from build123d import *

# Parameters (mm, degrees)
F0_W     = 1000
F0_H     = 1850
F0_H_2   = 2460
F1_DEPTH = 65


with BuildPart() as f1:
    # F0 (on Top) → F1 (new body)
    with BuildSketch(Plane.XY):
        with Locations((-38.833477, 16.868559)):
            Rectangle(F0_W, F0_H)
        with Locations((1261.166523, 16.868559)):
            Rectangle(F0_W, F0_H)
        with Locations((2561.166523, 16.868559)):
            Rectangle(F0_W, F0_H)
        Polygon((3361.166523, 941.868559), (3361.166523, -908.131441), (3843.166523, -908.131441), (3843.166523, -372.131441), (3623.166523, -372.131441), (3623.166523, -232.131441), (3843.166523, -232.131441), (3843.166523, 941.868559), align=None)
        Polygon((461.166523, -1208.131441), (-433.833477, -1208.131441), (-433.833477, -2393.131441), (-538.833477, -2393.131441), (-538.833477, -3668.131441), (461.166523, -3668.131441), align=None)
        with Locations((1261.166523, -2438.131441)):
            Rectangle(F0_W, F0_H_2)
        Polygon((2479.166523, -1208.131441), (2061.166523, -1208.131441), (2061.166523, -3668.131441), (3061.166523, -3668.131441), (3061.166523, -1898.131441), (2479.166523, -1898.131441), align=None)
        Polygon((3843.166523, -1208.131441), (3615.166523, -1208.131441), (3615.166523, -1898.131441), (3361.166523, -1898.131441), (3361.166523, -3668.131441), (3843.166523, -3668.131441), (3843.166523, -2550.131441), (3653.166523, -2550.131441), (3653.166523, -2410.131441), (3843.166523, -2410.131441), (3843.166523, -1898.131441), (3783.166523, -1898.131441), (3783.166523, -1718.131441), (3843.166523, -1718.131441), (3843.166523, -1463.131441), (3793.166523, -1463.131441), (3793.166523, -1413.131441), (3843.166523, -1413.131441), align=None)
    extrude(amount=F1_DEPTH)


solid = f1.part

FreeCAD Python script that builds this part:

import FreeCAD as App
import Part
import Sketcher
from FreeCAD import Vector
Q = App.Units.Quantity

doc = App.newDocument("Part")
body = doc.addObject("PartDesign::Body", "Body")
body.AllowCompound = True

# Sketch on XY plane
sketch1 = doc.addObject("Sketcher::SketchObject", "Sketch")
body.addObject(sketch1)
sketch1.AttachmentSupport = (doc.XY_Plane, [""])
sketch1.MapMode = "FlatFace"
sketch1.addGeometry([
    Part.LineSegment(Vector(-539, 942, 0), Vector(-539, -908, 0)),  # 0
    Part.LineSegment(Vector(-539, -908, 0), Vector(461, -908, 0)),  # 1
    Part.LineSegment(Vector(461, -908, 0), Vector(461, 942, 0)),  # 2
    Part.LineSegment(Vector(461, 942, 0), Vector(-539, 942, 0)),  # 3
    Part.LineSegment(Vector(761, 942, 0), Vector(761, -908, 0)),  # 4
    Part.LineSegment(Vector(761, -908, 0), Vector(1761, -908, 0)),  # 5
    Part.LineSegment(Vector(1761, -908, 0), Vector(1761, 942, 0)),  # 6
    Part.LineSegment(Vector(1761, 942, 0), Vector(761, 942, 0)),  # 7
    Part.LineSegment(Vector(2061, 942, 0), Vector(2061, -908, 0)),  # 8
    Part.LineSegment(Vector(2061, -908, 0), Vector(3061, -908, 0)),  # 9
    Part.LineSegment(Vector(3061, -908, 0), Vector(3061, 942, 0)),  # 10
    Part.LineSegment(Vector(3061, 942, 0), Vector(2061, 942, 0)),  # 11
    Part.LineSegment(Vector(3361, 942, 0), Vector(3361, -908, 0)),  # 12
    Part.LineSegment(Vector(3361, -908, 0), Vector(3843, -908, 0)),  # 13
    Part.LineSegment(Vector(3843, -908, 0), Vector(3843, -372, 0)),  # 14
    Part.LineSegment(Vector(3843, -372, 0), Vector(3623, -372, 0)),  # 15
    Part.LineSegment(Vector(3623, -372, 0), Vector(3623, -232, 0)),  # 16
    Part.LineSegment(Vector(3623, -232, 0), Vector(3843, -232, 0)),  # 17
    Part.LineSegment(Vector(3843, -232, 0), Vector(3843, 942, 0)),  # 18
    Part.LineSegment(Vector(3843, 942, 0), Vector(3361, 942, 0)),  # 19
    Part.LineSegment(Vector(461, -1208, 0), Vector(-434, -1208, 0)),  # 20
    Part.LineSegment(Vector(-434, -1208, 0), Vector(-434, -2393, 0)),  # 21
    Part.LineSegment(Vector(-434, -2393, 0), Vector(-539, -2393, 0)),  # 22
    Part.LineSegment(Vector(-539, -2393, 0), Vector(-539, -3668, 0)),  # 23
    Part.LineSegment(Vector(-539, -3668, 0), Vector(461, -3668, 0)),  # 24
    Part.LineSegment(Vector(461, -3668, 0), Vector(461, -1208, 0)),  # 25
    Part.LineSegment(Vector(761, -1208, 0), Vector(761, -3668, 0)),  # 26
    Part.LineSegment(Vector(761, -3668, 0), Vector(1761, -3668, 0)),  # 27
    Part.LineSegment(Vector(1761, -3668, 0), Vector(1761, -1208, 0)),  # 28
    Part.LineSegment(Vector(1761, -1208, 0), Vector(761, -1208, 0)),  # 29
    Part.LineSegment(Vector(2479, -1208, 0), Vector(2061, -1208, 0)),  # 30
    Part.LineSegment(Vector(2061, -1208, 0), Vector(2061, -3668, 0)),  # 31
    Part.LineSegment(Vector(2061, -3668, 0), Vector(3061, -3668, 0)),  # 32
    Part.LineSegment(Vector(3061, -3668, 0), Vector(3061, -1898, 0)),  # 33
    Part.LineSegment(Vector(3061, -1898, 0), Vector(2479, -1898, 0)),  # 34
    Part.LineSegment(Vector(2479, -1898, 0), Vector(2479, -1208, 0)),  # 35
    Part.LineSegment(Vector(3843, -1208, 0), Vector(3615, -1208, 0)),  # 36
    Part.LineSegment(Vector(3615, -1208, 0), Vector(3615, -1898, 0)),  # 37
    Part.LineSegment(Vector(3615, -1898, 0), Vector(3361, -1898, 0)),  # 38
    Part.LineSegment(Vector(3361, -1898, 0), Vector(3361, -3668, 0)),  # 39
    Part.LineSegment(Vector(3361, -3668, 0), Vector(3843, -3668, 0)),  # 40
    Part.LineSegment(Vector(3843, -3668, 0), Vector(3843, -2550, 0)),  # 41
    Part.LineSegment(Vector(3843, -2550, 0), Vector(3653, -2550, 0)),  # 42
    Part.LineSegment(Vector(3653, -2550, 0), Vector(3653, -2410, 0)),  # 43
    Part.LineSegment(Vector(3653, -2410, 0), Vector(3843, -2410, 0)),  # 44
    Part.LineSegment(Vector(3843, -2410, 0), Vector(3843, -1898, 0)),  # 45
    Part.LineSegment(Vector(3843, -1898, 0), Vector(3783, -1898, 0)),  # 46
    Part.LineSegment(Vector(3783, -1898, 0), Vector(3783, -1718, 0)),  # 47
    Part.LineSegment(Vector(3783, -1718, 0), Vector(3843, -1718, 0)),  # 48
    Part.LineSegment(Vector(3843, -1718, 0), Vector(3843, -1463, 0)),  # 49
    Part.LineSegment(Vector(3843, -1463, 0), Vector(3793, -1463, 0)),  # 50
    Part.LineSegment(Vector(3793, -1463, 0), Vector(3793, -1413, 0)),  # 51
    Part.LineSegment(Vector(3793, -1413, 0), Vector(3843, -1413, 0)),  # 52
    Part.LineSegment(Vector(3843, -1413, 0), Vector(3843, -1208, 0)),  # 53
], False)
sketch1.addConstraint([
    Sketcher.Constraint("Coincident", 0, 2, 1, 1),
    Sketcher.Constraint("Coincident", 1, 2, 2, 1),
    Sketcher.Constraint("Coincident", 2, 2, 3, 1),
    Sketcher.Constraint("Coincident", 3, 2, 0, 1),
    Sketcher.Constraint("Coincident", 4, 2, 5, 1),
    Sketcher.Constraint("Coincident", 5, 2, 6, 1),
    Sketcher.Constraint("Coincident", 6, 2, 7, 1),
    Sketcher.Constraint("Coincident", 7, 2, 4, 1),
    Sketcher.Constraint("Coincident", 8, 2, 9, 1),
    Sketcher.Constraint("Coincident", 9, 2, 10, 1),
    Sketcher.Constraint("Coincident", 10, 2, 11, 1),
    Sketcher.Constraint("Coincident", 11, 2, 8, 1),
    Sketcher.Constraint("Coincident", 12, 2, 13, 1),
    Sketcher.Constraint("Coincident", 13, 2, 14, 1),
    Sketcher.Constraint("Coincident", 14, 2, 15, 1),
    Sketcher.Constraint("Coincident", 15, 2, 16, 1),
    Sketcher.Constraint("Coincident", 16, 2, 17, 1),
    Sketcher.Constraint("Coincident", 17, 2, 18, 1),
    Sketcher.Constraint("Coincident", 18, 2, 19, 1),
    Sketcher.Constraint("Coincident", 19, 2, 12, 1),
    Sketcher.Constraint("Coincident", 20, 2, 21, 1),
    Sketcher.Constraint("Coincident", 21, 2, 22, 1),
    Sketcher.Constraint("Coincident", 22, 2, 23, 1),
    Sketcher.Constraint("Coincident", 23, 2, 24, 1),
    Sketcher.Constraint("Coincident", 24, 2, 25, 1),
    Sketcher.Constraint("Coincident", 25, 2, 20, 1),
    Sketcher.Constraint("Coincident", 26, 2, 27, 1),
    Sketcher.Constraint("Coincident", 27, 2, 28, 1),
    Sketcher.Constraint("Coincident", 28, 2, 29, 1),
    Sketcher.Constraint("Coincident", 29, 2, 26, 1),
    Sketcher.Constraint("Coincident", 30, 2, 31, 1),
    Sketcher.Constraint("Coincident", 31, 2, 32, 1),
    Sketcher.Constraint("Coincident", 32, 2, 33, 1),
    Sketcher.Constraint("Coincident", 33, 2, 34, 1),
    Sketcher.Constraint("Coincident", 34, 2, 35, 1),
    Sketcher.Constraint("Coincident", 35, 2, 30, 1),
    Sketcher.Constraint("Coincident", 36, 2, 37, 1),
    Sketcher.Constraint("Coincident", 37, 2, 38, 1),
    Sketcher.Constraint("Coincident", 38, 2, 39, 1),
    Sketcher.Constraint("Coincident", 39, 2, 40, 1),
    Sketcher.Constraint("Coincident", 40, 2, 41, 1),
    Sketcher.Constraint("Coincident", 41, 2, 42, 1),
    Sketcher.Constraint("Coincident", 42, 2, 43, 1),
    Sketcher.Constraint("Coincident", 43, 2, 44, 1),
    Sketcher.Constraint("Coincident", 44, 2, 45, 1),
    Sketcher.Constraint("Coincident", 45, 2, 46, 1),
    Sketcher.Constraint("Coincident", 46, 2, 47, 1),
    Sketcher.Constraint("Coincident", 47, 2, 48, 1),
    Sketcher.Constraint("Coincident", 48, 2, 49, 1),
    Sketcher.Constraint("Coincident", 49, 2, 50, 1),
    Sketcher.Constraint("Coincident", 50, 2, 51, 1),
    Sketcher.Constraint("Coincident", 51, 2, 52, 1),
    Sketcher.Constraint("Coincident", 52, 2, 53, 1),
    Sketcher.Constraint("Coincident", 53, 2, 36, 1),
    Sketcher.Constraint("Vertical", 0),
    Sketcher.Constraint("Horizontal", 1),
    Sketcher.Constraint("Vertical", 2),
    Sketcher.Constraint("Horizontal", 3),
    Sketcher.Constraint("Vertical", 4),
    Sketcher.Constraint("Horizontal", 5),
    Sketcher.Constraint("Vertical", 6),
    Sketcher.Constraint("Horizontal", 7),
    Sketcher.Constraint("Vertical", 8),
    Sketcher.Constraint("Horizontal", 9),
    Sketcher.Constraint("Vertical", 10),
    Sketcher.Constraint("Horizontal", 11),
    Sketcher.Constraint("Vertical", 12),
    Sketcher.Constraint("Horizontal", 13),
    Sketcher.Constraint("Vertical", 14),
    Sketcher.Constraint("Horizontal", 15),
    Sketcher.Constraint("Vertical", 16),
    Sketcher.Constraint("Horizontal", 17),
    Sketcher.Constraint("Vertical", 18),
    Sketcher.Constraint("Horizontal", 19),
    Sketcher.Constraint("Horizontal", 20),
    Sketcher.Constraint("Vertical", 21),
    Sketcher.Constraint("Horizontal", 22),
    Sketcher.Constraint("Vertical", 23),
    Sketcher.Constraint("Horizontal", 24),
    Sketcher.Constraint("Vertical", 25),
    Sketcher.Constraint("Vertical", 26),
    Sketcher.Constraint("Horizontal", 27),
    Sketcher.Constraint("Vertical", 28),
    Sketcher.Constraint("Horizontal", 29),
    Sketcher.Constraint("Horizontal", 30),
    Sketcher.Constraint("Vertical", 31),
    Sketcher.Constraint("Horizontal", 32),
    Sketcher.Constraint("Vertical", 33),
    Sketcher.Constraint("Horizontal", 34),
    Sketcher.Constraint("Vertical", 35),
    Sketcher.Constraint("Horizontal", 36),
    Sketcher.Constraint("Vertical", 37),
    Sketcher.Constraint("Horizontal", 38),
    Sketcher.Constraint("Vertical", 39),
    Sketcher.Constraint("Horizontal", 40),
    Sketcher.Constraint("Vertical", 41),
    Sketcher.Constraint("Horizontal", 42),
    Sketcher.Constraint("Vertical", 43),
    Sketcher.Constraint("Horizontal", 44),
    Sketcher.Constraint("Vertical", 45),
    Sketcher.Constraint("Horizontal", 46),
    Sketcher.Constraint("Vertical", 47),
    Sketcher.Constraint("Horizontal", 48),
    Sketcher.Constraint("Vertical", 49),
    Sketcher.Constraint("Horizontal", 50),
    Sketcher.Constraint("Vertical", 51),
    Sketcher.Constraint("Horizontal", 52),
    Sketcher.Constraint("Vertical", 53),
    Sketcher.Constraint("Horizontal", 1, 2, 4, 2),
    Sketcher.Constraint("Horizontal", 3, 2, 6, 2),
    Sketcher.Constraint("Horizontal", 5, 2, 8, 2),
    Sketcher.Constraint("Horizontal", 7, 2, 10, 2),
    Sketcher.Constraint("Horizontal", 9, 2, 12, 2),
    Sketcher.Constraint("Horizontal", 11, 2, 18, 2),
    Sketcher.Constraint("Horizontal", 24, 2, 26, 2),
    Sketcher.Constraint("Horizontal", 25, 2, 28, 2),
    Sketcher.Constraint("Horizontal", 29, 2, 30, 2),
    Sketcher.Constraint("Horizontal", 27, 2, 31, 2),
    Sketcher.Constraint("Horizontal", 35, 2, 36, 2),
    Sketcher.Constraint("Horizontal", 34, 2, 37, 2),
    Sketcher.Constraint("Horizontal", 32, 2, 39, 2),
    Sketcher.Constraint("Horizontal", 38, 2, 45, 2),
    Sketcher.Constraint("Vertical", 14, 2, 17, 2),
    Sketcher.Constraint("Vertical", 3, 2, 22, 2),
    Sketcher.Constraint("Vertical", 2, 2, 24, 2),
    Sketcher.Constraint("Vertical", 7, 2, 26, 2),
    Sketcher.Constraint("Vertical", 6, 2, 27, 2),
    Sketcher.Constraint("Vertical", 11, 2, 30, 2),
    Sketcher.Constraint("Vertical", 10, 2, 32, 2),
    Sketcher.Constraint("Vertical", 19, 2, 38, 2),
    Sketcher.Constraint("Vertical", 18, 2, 40, 2),
    Sketcher.Constraint("Vertical", 41, 2, 44, 2),
    Sketcher.Constraint("Vertical", 45, 2, 48, 2),
    Sketcher.Constraint("Vertical", 49, 2, 52, 2),
    Sketcher.Constraint("Equal", 3, 5),
    Sketcher.Constraint("Equal", 7, 9),
    Sketcher.Constraint("Equal", 16, 43),
    Sketcher.Constraint("Equal", 52, 51),
    Sketcher.Constraint("DistanceX", 1, 1, 1, 2, Q("1000 mm")),
    Sketcher.Constraint("DistanceX", 13, 1, 13, 2, Q("482 mm")),
    Sketcher.Constraint("DistanceX", 15, 2, 15, 1, Q("220 mm")),
    Sketcher.Constraint("DistanceX", 20, 2, 20, 1, Q("895 mm")),
    Sketcher.Constraint("DistanceX", 30, 2, 30, 1, Q("418 mm")),
    Sketcher.Constraint("DistanceX", 36, 2, 36, 1, Q("228 mm")),
    Sketcher.Constraint("DistanceX", 42, 2, 42, 1, Q("190 mm")),
    Sketcher.Constraint("DistanceX", 46, 2, 46, 1, Q("60 mm")),
    Sketcher.Constraint("DistanceX", 50, 2, 50, 1, Q("50 mm")),
    Sketcher.Constraint("DistanceY", 0, 2, 0, 1, Q("1850 mm")),
    Sketcher.Constraint("DistanceY", 14, 1, 14, 2, Q("536 mm")),
    Sketcher.Constraint("DistanceY", 16, 1, 16, 2, Q("140 mm")),
    Sketcher.Constraint("DistanceY", 21, 2, 21, 1, Q("1185 mm")),
    Sketcher.Constraint("DistanceY", 23, 2, 23, 1, Q("1275 mm")),
    Sketcher.Constraint("DistanceY", 33, 1, 33, 2, Q("1770 mm")),
    Sketcher.Constraint("DistanceY", 41, 1, 41, 2, Q("1118 mm")),
    Sketcher.Constraint("DistanceY", 47, 1, 47, 2, Q("180 mm")),
    Sketcher.Constraint("DistanceY", 49, 1, 49, 2, Q("255 mm")),
    Sketcher.Constraint("DistanceX", 1, 2, 4, 2, Q("300 mm")),
    Sketcher.Constraint("DistanceX", 5, 2, 8, 2, Q("300 mm")),
    Sketcher.Constraint("DistanceX", 9, 2, 12, 2, Q("300 mm")),
    Sketcher.Constraint("DistanceY", 20, 2, 0, 2, Q("300 mm")),
    Sketcher.Constraint("DistanceY", 0, 2, -1, 1, Q("908.131441 mm")),
    Sketcher.Constraint("DistanceX", 0, 2, -1, 1, Q("538.833477 mm")),
])
pad1 = doc.addObject("PartDesign::Pad", "Pad")
body.addObject(pad1)
pad1.Profile = sketch1
pad1.Length = 65

doc.recompute()
